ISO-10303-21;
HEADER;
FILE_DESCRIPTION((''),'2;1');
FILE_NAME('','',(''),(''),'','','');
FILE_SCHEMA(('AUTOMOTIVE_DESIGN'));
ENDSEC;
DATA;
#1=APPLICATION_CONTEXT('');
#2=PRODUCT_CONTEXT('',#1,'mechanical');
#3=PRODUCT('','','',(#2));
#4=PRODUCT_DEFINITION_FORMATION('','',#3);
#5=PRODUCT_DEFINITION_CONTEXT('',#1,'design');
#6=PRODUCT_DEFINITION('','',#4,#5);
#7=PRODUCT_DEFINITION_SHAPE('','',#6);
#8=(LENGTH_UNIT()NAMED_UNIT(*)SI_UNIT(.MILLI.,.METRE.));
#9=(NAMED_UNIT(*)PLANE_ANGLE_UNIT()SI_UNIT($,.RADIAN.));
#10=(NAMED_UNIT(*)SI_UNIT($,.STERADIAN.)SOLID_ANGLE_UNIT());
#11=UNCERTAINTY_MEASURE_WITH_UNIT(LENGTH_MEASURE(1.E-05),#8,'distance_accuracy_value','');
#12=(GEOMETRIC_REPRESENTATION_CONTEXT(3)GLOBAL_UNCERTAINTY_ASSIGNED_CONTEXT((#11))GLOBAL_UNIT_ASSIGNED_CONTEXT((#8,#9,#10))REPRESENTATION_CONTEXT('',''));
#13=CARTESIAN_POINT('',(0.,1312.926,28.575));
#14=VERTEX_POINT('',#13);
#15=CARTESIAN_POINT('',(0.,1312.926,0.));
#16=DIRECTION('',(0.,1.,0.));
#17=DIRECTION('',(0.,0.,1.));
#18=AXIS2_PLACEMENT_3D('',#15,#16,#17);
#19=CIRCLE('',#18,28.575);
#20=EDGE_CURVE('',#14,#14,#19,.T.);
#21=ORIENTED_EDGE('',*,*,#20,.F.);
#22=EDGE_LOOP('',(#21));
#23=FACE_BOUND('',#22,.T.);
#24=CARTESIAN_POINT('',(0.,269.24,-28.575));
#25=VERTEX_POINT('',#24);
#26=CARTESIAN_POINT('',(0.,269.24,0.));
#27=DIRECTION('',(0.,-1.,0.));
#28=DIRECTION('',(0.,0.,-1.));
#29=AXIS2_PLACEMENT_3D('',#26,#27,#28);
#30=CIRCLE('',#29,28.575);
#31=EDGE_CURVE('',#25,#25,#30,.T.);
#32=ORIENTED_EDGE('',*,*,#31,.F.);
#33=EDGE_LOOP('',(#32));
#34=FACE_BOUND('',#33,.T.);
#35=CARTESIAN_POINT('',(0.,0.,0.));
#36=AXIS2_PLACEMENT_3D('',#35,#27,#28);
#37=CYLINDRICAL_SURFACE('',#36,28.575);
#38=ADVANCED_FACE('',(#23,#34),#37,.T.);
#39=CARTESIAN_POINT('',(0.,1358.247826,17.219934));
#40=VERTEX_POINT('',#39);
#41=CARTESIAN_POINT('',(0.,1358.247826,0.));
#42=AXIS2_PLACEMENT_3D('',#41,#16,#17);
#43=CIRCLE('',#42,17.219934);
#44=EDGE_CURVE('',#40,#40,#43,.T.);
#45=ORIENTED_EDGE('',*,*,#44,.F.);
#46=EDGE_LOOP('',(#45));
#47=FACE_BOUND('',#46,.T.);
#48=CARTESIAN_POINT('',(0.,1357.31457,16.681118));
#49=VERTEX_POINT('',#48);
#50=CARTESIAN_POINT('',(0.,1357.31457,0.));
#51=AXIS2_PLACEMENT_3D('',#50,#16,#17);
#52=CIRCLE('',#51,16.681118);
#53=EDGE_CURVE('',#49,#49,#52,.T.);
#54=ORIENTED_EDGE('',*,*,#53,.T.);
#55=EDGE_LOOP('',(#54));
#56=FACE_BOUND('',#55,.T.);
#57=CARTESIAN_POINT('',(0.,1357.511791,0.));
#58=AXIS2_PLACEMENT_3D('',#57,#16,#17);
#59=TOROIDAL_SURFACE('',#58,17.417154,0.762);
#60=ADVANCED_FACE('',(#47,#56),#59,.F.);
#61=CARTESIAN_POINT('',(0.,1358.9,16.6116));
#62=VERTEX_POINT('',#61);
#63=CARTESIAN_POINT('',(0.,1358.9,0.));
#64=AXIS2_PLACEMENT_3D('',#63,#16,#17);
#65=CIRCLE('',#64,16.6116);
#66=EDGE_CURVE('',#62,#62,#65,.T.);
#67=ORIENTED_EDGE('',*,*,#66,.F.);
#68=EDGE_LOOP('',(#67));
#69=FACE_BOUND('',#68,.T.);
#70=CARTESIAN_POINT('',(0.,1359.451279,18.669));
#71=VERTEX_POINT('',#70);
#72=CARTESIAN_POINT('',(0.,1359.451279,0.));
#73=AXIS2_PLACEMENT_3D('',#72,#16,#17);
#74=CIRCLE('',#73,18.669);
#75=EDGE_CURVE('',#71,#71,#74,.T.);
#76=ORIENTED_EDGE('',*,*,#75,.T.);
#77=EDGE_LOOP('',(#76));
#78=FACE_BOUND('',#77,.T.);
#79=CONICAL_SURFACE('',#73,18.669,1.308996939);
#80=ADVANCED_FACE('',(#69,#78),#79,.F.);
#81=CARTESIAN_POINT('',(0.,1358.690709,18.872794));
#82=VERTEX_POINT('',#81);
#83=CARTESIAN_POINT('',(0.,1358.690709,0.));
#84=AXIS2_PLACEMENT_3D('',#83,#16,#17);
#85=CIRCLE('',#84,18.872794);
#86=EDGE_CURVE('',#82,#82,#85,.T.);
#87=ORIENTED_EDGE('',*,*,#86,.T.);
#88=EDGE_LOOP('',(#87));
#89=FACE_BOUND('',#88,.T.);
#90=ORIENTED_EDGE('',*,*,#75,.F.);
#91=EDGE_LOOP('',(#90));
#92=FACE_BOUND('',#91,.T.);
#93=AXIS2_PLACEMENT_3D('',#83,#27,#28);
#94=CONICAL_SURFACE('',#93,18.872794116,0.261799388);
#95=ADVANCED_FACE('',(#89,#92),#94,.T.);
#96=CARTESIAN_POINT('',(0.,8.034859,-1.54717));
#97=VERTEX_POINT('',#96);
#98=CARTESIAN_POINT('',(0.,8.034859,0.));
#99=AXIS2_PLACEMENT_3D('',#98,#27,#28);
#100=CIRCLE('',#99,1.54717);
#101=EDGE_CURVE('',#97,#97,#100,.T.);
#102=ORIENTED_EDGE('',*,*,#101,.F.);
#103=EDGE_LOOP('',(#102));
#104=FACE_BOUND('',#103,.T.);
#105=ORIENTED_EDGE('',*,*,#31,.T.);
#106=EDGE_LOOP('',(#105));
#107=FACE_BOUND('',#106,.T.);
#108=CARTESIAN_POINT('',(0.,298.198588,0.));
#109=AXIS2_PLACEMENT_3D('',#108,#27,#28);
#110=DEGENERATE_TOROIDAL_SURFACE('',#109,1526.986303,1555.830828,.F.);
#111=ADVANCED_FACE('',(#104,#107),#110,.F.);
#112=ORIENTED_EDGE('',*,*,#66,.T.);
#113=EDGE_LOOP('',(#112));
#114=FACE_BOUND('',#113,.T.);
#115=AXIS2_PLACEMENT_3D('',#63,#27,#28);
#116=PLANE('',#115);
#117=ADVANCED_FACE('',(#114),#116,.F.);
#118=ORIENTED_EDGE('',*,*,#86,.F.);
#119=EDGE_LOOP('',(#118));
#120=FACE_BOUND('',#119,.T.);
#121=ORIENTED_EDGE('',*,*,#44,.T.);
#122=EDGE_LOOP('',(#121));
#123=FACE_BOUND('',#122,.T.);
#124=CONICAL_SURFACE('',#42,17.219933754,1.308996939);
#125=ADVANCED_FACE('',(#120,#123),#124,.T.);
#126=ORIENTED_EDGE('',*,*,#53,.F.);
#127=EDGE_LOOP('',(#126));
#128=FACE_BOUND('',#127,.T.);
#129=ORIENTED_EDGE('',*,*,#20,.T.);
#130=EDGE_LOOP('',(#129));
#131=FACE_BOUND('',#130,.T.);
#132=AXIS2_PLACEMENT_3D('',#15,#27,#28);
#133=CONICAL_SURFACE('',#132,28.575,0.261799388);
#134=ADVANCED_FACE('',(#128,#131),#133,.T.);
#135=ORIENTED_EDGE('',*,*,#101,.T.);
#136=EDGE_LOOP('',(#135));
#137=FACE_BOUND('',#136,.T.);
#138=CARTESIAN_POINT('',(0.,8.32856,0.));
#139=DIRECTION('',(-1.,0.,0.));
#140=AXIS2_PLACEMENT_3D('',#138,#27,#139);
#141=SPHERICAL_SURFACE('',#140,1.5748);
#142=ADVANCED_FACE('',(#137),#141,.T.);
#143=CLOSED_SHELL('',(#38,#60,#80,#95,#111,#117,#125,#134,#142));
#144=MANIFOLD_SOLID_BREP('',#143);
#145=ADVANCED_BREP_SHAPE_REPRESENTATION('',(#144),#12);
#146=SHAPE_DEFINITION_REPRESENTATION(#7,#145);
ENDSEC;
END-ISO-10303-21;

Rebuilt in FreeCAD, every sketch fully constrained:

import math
import FreeCAD as App
import Part
import Sketcher
from FreeCAD import Vector
Q = App.Units.Quantity

doc = App.newDocument("Part")
body = doc.addObject("PartDesign::Body", "Body")

# Sketch on XY plane
sketch1 = doc.addObject("Sketcher::SketchObject", "Sketch")
body.addObject(sketch1)
sketch1.AttachmentSupport = (doc.XY_Plane, [""])
sketch1.MapMode = "FlatFace"
sketch1.addGeometry([
    Part.LineSegment(Vector(0, 1266.2, 0), Vector(0, 6.8, 0)),  # 0
    Part.ArcOfCircle(Part.Circle(Vector(0, 8.3, 0), Vector(0, 0, 1), 1.6), math.radians(-90), math.radians(-11)),  # 1
    Part.ArcOfCircle(Part.Circle(Vector(-1527, 298.2, 0), Vector(0, 0, 1), 1555.8), math.radians(-10.75), math.radians(-1.07)),  # 2
    Part.LineSegment(Vector(28.6, 269.2, 0), Vector(28.6, 1266.2, 0)),  # 3
    Part.LineSegment(Vector(28.6, 1266.2, 0), Vector(0, 1266.2, 0)),  # 4
], False)
sketch1.addConstraint([
    Sketcher.Constraint("Coincident", 0, 2, 1, 1),
    Sketcher.Constraint("Tangent", 1, 2, 2, 1),
    Sketcher.Constraint("Coincident", 2, 2, 3, 1),
    Sketcher.Constraint("Coincident", 3, 2, 4, 1),
    Sketcher.Constraint("Coincident", 4, 2, 0, 1),
    Sketcher.Constraint("Vertical", 0),
    Sketcher.Constraint("Vertical", 3),
    Sketcher.Constraint("Horizontal", 4),
    Sketcher.Constraint("PointOnObject", 1, 3, -2),
    Sketcher.Constraint("PointOnObject", 0, 2, -2),
    Sketcher.Constraint("Radius", 1, Q("0.062 in")),
    Sketcher.Constraint("DistanceY", 3, 1, 3, 2, Q("39.25 in")),
    Sketcher.Constraint("DistanceX", 4, 2, 4, 1, Q("1.125 in")),
    Sketcher.Constraint("DistanceY", -1, 1, 3, 2, Q("49.85 in")),
    Sketcher.Constraint("Radius", 2, 1555.830828),
    Sketcher.Constraint("DistanceY", 0, 2, 0, 1, 1259.43624),
])
revolution = doc.addObject("PartDesign::Revolution", "Revolution")
body.addObject(revolution)
revolution.Profile = sketch1
revolution.ReferenceAxis = (sketch1, ["V_Axis"])
revolution.Angle = 360

# Sketch on XY plane
sketch2 = doc.addObject("Sketcher::SketchObject", "Sketch001")
body.addObject(sketch2)
sketch2.AttachmentSupport = (doc.XY_Plane, [""])
sketch2.MapMode = "FlatFace"
sketch2.addGeometry([
    Part.LineSegment(Vector(-28.6, 1312.9, 0), Vector(-28.6, 1266.2, 0)),  # 0
    Part.LineSegment(Vector(-28.6, 1266.2, 0), Vector(0, 1266.2, 0)),  # 1
    Part.LineSegment(Vector(0, 1266.2, 0), Vector(0, 1358.9, 0)),  # 2
    Part.LineSegment(Vector(0, 1358.9, 0), Vector(-16.6, 1358.9, 0)),  # 3
    Part.LineSegment(Vector(-16.6, 1358.9, 0), Vector(-18.7, 1359.5, 0)),  # 4
    Part.LineSegment(Vector(-18.7, 1359.5, 0), Vector(-18.9, 1358.7, 0)),  # 5
    Part.LineSegment(Vector(-18.9, 1358.7, 0), Vector(-17.2, 1358.2, 0)),  # 6
    Part.ArcOfCircle(Part.Circle(Vector(-17.4, 1357.5, 0), Vector(0, 0, 1), 0.8), math.radians(-15), math.radians(75)),  # 7
    Part.LineSegment(Vector(-16.7, 1357.3, 0), Vector(-28.6, 1312.9, 0)),  # 8
], False)
sketch2.addConstraint([
    Sketcher.Constraint("Coincident", 0, 2, 1, 1),
    Sketcher.Constraint("Coincident", 1, 2, 2, 1),
    Sketcher.Constraint("Coincident", 2, 2, 3, 1),
    Sketcher.Constraint("Coincident", 3, 2, 4, 1),
    Sketcher.Constraint("Coincident", 4, 2, 5, 1),
    Sketcher.Constraint("Coincident", 5, 2, 6, 1),
    Sketcher.Constraint("Tangent", 6, 2, 7, 2),
    Sketcher.Constraint("Tangent", 7, 1, 8, 1),
    Sketcher.Constraint("Coincident", 8, 2, 0, 1),
    Sketcher.Constraint("Vertical", 0),
    Sketcher.Constraint("Horizontal", 1),
    Sketcher.Constraint("Vertical", 2),
    Sketcher.Constraint("Horizontal", 3),
    Sketcher.Constraint("PointOnObject", 1, 2, -2),
    Sketcher.Constraint("Perpendicular", 4, 5),
    Sketcher.Constraint("Perpendicular", 5, 6),
    Sketcher.Constraint("Perpendicular", 6, 8),
    Sketcher.Constraint("Radius", 7, Q("0.03 in")),
    Sketcher.Constraint("Angle", 4, Q("165 deg")),
    Sketcher.Constraint("DistanceY", 0, 2, 0, 1, Q("1.84 in")),
    Sketcher.Constraint("DistanceY", 2, 1, 2, 2, Q("3.65 in")),
    Sketcher.Constraint("DistanceY", -1, 1, 2, 2, Q("53.5 in")),
    Sketcher.Constraint("DistanceX", 1, 1, 1, 2, Q("1.125 in")),
    Sketcher.Constraint("DistanceX", 3, 2, 3, 1, Q("0.654 in")),
    Sketcher.Constraint("DistanceX", 0, 2, 4, 2, Q("0.39 in")),
    Sketcher.Constraint("Distance", 5, Q("0.031 in")),
])
revolution2 = doc.addObject("PartDesign::Revolution", "Revolution001")
body.addObject(revolution2)
revolution2.Profile = sketch2
revolution2.ReferenceAxis = (sketch2, ["V_Axis"])
revolution2.Angle = 360

doc.recompute()
